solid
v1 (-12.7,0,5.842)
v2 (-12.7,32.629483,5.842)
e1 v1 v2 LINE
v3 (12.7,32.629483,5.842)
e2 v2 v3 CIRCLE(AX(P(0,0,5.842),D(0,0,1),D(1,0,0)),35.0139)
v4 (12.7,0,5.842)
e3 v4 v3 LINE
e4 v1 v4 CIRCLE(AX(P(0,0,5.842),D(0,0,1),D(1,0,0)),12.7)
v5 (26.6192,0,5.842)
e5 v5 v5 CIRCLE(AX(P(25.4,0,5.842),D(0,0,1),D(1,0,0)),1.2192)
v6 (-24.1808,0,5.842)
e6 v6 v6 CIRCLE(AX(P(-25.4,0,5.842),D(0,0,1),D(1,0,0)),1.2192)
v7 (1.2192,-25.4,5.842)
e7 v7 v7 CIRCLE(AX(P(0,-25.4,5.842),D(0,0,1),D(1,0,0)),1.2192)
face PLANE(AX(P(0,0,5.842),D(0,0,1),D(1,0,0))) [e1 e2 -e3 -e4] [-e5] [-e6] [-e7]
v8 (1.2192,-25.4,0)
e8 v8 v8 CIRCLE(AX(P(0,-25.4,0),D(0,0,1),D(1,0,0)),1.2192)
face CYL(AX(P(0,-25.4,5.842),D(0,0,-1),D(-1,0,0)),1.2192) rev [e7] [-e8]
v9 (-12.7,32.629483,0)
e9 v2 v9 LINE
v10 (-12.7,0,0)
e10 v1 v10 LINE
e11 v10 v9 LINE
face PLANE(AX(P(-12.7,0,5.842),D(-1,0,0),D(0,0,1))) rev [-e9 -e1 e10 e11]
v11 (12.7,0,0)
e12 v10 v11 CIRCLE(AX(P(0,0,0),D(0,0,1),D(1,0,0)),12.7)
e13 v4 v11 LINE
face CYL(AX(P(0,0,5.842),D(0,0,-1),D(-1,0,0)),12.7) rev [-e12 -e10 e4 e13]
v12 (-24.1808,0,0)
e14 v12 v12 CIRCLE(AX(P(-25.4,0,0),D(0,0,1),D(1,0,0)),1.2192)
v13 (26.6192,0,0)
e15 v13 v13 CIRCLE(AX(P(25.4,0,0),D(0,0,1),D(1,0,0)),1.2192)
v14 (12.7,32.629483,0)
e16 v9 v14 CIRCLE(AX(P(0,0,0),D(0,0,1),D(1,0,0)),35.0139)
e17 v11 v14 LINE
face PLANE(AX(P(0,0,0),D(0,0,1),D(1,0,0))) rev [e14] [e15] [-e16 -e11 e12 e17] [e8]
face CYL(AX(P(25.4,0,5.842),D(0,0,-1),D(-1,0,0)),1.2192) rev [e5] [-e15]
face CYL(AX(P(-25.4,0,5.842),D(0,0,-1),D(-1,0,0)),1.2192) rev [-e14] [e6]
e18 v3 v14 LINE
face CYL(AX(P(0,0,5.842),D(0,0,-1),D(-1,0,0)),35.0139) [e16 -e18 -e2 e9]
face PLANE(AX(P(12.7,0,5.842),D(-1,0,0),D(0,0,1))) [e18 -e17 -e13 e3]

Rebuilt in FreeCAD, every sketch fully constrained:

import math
import FreeCAD as App
import Part
import Sketcher
Q = App.Units.Quantity

doc = App.newDocument("Part")
params = doc.addObject("Spreadsheet::Sheet", "Params")
for row, (alias, value) in enumerate([
    ("sketch1_radius", "0.5 in"),
    ("sketch1_diameter", "0.096 in"),
    ("pad1_length", "0.23 in"),
], start=1):
    params.set(f"A{row}", alias)
    params.set(f"B{row}", "=" + value)
    params.setAlias(f"B{row}", alias)

body = doc.addObject("PartDesign::Body", "Body")

sketch1 = doc.addObject("Sketcher::SketchObject", "Sketch")
body.addObject(sketch1)
sketch1.AttachmentSupport = (doc.XY_Plane, [""])
sketch1.MapMode = "FlatFace"
sketch1.addGeometry([
    Part.LineSegment(App.Vector(12.7, 32.6, 0), App.Vector(12.7, 0, 0)),
    Part.ArcOfCircle(Part.Circle(App.Vector(0, 0, 0), App.Vector(0, 0, 1), 12.7), math.radians(180), math.radians(360)),
    Part.LineSegment(App.Vector(-12.7, 0, 0), App.Vector(-12.7, 32.6, 0)),
    Part.ArcOfCircle(Part.Circle(App.Vector(0, 0, 0), App.Vector(0, 0, 1), 35), math.radians(111), math.radians(360)),
    Part.ArcOfCircle(Part.Circle(App.Vector(0, 0, 0), App.Vector(0, 0, 1), 35), math.radians(0), math.radians(69)),
    Part.Circle(App.Vector(0, -25.4, 0), App.Vector(0, 0, 1), 1.2),
    Part.Circle(App.Vector(-25.4, 0, 0), App.Vector(0, 0, 1), 1.2),
    Part.Circle(App.Vector(25.4, 0, 0), App.Vector(0, 0, 1), 1.2),
], False)
sketch1.addConstraint([
    Sketcher.Constraint("Tangent", 0, 2, 1, 2),
    Sketcher.Constraint("Tangent", 1, 1, 2, 1),
    Sketcher.Constraint("Coincident", 2, 2, 3, 1),
    Sketcher.Constraint("Tangent", 3, 2, 4, 1),
    Sketcher.Constraint("Coincident", 4, 2, 0, 1),
    Sketcher.Constraint("Vertical", 0),
    Sketcher.Constraint("Vertical", 2),
    Sketcher.Constraint("Coincident", 1, 3, -1, 1),
    Sketcher.Constraint("Coincident", 3, 3, -1, 1),
    Sketcher.Constraint("Equal", 3, 4),
    Sketcher.Constraint("Equal", 5, 6),
    Sketcher.Constraint("Equal", 6, 7),
    Sketcher.Constraint("Symmetric", 6, 3, 7, 3, -1, 1),
    Sketcher.Constraint("PointOnObject", 5, 3, -2),
    Sketcher.Constraint("PointOnObject", 6, 3, -1),
    Sketcher.Constraint("PointOnObject", 3, 2, -1),
    Sketcher.Constraint("Radius", 1, Q("0.5 in")),
    Sketcher.Constraint("Diameter", 5, Q("0.096 in")),
    Sketcher.Constraint("DistanceY", 5, 3, -1, 1, Q("1 in")),
    Sketcher.Constraint("DistanceX", 6, 3, -1, 1, Q("1 in")),
    Sketcher.Constraint("Radius", 3, Q("1.3785 in")),
])
sketch1.setExpression("Constraints[16]", "Params.sketch1_radius")
sketch1.setExpression("Constraints[17]", "Params.sketch1_diameter")
pad1 = doc.addObject("PartDesign::Pad", "Pad")
body.addObject(pad1)
pad1.Profile = sketch1
pad1.setExpression("Length", "Params.pad1_length")

doc.recompute()
